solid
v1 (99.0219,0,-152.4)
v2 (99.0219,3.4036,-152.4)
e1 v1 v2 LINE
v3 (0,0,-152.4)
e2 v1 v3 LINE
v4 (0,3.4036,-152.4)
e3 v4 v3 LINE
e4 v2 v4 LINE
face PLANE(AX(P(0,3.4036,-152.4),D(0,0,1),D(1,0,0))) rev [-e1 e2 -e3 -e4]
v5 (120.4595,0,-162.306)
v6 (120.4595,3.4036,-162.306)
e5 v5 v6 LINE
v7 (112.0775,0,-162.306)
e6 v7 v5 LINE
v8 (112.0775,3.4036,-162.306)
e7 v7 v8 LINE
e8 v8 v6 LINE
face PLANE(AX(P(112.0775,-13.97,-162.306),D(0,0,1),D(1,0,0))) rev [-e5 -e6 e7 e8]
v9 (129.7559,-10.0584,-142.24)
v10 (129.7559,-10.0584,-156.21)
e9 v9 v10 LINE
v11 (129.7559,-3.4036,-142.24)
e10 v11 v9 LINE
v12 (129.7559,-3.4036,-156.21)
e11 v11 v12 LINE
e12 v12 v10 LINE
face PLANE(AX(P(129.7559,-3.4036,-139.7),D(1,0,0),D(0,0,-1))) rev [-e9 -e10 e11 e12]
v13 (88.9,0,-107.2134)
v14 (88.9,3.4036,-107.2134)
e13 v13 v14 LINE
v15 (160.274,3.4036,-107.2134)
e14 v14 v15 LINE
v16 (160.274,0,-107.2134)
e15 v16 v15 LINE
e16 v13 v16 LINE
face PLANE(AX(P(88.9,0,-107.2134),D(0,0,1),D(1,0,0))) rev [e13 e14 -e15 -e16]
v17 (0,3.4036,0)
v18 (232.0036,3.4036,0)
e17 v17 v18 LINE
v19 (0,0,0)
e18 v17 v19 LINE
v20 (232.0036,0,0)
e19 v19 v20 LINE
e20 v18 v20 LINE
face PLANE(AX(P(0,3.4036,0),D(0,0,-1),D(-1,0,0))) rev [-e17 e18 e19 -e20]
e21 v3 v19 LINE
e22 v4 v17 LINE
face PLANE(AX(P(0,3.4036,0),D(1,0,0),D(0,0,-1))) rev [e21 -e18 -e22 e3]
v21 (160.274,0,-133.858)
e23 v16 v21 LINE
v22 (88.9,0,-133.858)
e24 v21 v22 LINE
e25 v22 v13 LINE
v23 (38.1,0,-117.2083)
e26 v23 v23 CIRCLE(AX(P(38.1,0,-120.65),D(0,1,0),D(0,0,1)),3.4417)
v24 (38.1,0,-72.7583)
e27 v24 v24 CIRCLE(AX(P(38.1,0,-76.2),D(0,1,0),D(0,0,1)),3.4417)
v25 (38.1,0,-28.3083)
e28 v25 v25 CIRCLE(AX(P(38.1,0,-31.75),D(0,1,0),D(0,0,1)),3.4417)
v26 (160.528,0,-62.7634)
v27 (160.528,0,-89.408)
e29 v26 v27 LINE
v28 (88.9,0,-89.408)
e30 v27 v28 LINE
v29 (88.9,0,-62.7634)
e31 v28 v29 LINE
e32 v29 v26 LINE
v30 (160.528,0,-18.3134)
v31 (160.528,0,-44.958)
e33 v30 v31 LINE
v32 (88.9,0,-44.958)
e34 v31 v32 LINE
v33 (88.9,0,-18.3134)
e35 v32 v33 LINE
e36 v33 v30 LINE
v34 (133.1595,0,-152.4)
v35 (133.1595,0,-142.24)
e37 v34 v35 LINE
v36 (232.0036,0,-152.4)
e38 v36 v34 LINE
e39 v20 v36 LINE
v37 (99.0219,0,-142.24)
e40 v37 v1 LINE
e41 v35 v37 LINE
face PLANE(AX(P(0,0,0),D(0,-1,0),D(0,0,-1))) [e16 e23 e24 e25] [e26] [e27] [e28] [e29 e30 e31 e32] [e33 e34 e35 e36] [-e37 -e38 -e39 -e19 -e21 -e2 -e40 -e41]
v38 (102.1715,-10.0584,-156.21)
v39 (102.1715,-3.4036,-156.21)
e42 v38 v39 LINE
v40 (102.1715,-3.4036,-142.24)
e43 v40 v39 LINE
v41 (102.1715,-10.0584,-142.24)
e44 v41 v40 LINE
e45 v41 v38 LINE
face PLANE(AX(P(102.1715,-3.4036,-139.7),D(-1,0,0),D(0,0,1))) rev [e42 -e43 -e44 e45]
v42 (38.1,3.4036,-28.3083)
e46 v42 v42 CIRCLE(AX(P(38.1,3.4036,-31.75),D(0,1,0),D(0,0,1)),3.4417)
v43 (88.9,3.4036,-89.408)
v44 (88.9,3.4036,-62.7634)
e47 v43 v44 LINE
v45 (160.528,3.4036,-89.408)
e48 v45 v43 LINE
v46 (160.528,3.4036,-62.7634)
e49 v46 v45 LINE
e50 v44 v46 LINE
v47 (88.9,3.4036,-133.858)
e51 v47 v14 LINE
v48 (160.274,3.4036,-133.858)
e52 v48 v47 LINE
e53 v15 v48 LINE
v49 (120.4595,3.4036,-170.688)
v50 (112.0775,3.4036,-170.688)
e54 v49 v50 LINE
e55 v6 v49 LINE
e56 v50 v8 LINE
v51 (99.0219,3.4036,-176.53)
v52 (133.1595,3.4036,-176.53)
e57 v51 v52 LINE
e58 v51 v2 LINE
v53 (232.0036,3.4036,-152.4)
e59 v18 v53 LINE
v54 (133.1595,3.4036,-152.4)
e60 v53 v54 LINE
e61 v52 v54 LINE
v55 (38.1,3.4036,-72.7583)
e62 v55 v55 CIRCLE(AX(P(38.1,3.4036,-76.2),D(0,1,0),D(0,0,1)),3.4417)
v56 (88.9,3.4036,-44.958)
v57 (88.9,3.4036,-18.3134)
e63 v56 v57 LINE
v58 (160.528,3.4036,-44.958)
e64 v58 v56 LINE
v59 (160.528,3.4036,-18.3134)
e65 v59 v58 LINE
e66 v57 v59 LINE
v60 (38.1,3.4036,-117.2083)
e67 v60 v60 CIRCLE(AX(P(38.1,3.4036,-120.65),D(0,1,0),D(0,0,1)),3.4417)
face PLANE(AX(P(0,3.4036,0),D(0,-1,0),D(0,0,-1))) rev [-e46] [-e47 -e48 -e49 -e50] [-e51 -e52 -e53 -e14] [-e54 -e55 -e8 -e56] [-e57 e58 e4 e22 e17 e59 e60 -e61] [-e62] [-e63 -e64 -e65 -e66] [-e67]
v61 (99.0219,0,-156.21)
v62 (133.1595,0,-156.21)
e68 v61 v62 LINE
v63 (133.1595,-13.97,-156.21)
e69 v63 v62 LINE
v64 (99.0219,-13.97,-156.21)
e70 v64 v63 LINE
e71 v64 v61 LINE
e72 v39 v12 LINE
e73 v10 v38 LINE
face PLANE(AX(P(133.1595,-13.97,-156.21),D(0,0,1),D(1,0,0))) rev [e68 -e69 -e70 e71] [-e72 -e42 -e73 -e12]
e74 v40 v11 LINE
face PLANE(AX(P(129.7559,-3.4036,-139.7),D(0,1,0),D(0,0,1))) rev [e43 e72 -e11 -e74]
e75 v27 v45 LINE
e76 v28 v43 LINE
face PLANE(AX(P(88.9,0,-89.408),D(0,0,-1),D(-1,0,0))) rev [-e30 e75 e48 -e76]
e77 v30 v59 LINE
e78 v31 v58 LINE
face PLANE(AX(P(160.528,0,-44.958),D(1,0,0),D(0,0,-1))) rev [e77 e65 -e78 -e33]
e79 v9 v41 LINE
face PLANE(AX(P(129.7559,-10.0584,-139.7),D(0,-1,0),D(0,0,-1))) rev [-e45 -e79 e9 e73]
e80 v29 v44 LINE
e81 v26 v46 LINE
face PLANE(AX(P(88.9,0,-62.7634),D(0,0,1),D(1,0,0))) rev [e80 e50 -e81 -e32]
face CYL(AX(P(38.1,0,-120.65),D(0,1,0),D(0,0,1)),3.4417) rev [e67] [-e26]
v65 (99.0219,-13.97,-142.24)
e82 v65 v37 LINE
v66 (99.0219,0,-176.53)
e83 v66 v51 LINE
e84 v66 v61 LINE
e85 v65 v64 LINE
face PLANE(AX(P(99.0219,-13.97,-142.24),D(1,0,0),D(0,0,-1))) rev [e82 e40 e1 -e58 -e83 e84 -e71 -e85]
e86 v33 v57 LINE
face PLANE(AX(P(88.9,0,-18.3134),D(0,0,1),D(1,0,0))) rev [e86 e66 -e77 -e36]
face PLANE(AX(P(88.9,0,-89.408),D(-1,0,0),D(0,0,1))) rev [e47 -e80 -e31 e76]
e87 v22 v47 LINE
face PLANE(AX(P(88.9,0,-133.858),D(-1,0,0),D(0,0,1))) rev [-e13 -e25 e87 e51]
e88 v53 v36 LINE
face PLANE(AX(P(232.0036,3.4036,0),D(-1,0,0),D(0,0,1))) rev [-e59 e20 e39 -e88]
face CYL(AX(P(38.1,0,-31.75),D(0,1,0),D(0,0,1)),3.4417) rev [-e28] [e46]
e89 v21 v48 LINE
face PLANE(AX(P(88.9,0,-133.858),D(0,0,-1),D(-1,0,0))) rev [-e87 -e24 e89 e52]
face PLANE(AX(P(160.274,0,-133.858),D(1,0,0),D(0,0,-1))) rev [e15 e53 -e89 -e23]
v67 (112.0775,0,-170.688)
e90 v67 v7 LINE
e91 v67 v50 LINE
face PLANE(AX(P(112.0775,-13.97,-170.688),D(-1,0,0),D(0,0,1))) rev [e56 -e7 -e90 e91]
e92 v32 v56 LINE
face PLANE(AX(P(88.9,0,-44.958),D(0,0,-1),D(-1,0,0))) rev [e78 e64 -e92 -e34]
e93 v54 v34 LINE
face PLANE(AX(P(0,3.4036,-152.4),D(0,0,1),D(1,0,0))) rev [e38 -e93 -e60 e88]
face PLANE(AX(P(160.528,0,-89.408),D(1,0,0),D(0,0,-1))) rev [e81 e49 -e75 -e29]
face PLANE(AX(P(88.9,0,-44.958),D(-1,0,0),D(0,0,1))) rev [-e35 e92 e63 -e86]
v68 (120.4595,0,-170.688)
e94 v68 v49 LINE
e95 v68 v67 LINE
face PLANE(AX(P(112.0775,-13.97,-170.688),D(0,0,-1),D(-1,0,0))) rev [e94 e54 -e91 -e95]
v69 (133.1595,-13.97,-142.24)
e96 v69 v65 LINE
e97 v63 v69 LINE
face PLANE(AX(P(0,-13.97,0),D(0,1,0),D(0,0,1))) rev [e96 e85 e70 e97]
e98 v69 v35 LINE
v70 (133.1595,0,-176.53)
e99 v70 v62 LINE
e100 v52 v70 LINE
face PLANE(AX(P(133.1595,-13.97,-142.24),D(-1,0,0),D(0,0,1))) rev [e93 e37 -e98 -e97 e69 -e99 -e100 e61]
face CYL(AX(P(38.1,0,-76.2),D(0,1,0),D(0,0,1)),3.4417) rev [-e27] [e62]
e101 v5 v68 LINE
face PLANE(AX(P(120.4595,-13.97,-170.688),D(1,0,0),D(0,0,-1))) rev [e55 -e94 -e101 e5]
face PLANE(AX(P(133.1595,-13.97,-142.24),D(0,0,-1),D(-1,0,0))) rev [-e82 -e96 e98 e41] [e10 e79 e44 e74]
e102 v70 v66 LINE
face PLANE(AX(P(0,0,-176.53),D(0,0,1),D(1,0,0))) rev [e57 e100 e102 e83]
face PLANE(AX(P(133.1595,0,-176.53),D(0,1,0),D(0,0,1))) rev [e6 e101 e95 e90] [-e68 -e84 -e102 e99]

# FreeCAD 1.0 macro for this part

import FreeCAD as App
import Part
import Sketcher
from FreeCAD import Vector
Q = App.Units.Quantity


def add_polygon(sketch, points):
    """Adds a closed chain of lines whose ends are joined by coincident constraints."""
    first, n = sketch.GeometryCount, len(points)
    for a, b in zip(points, points[1:] + points[:1]):
        sketch.addGeometry(Part.LineSegment(App.Vector(*a, 0), App.Vector(*b, 0)), False)
    for i in range(n):
        sketch.addConstraint(Sketcher.Constraint("Coincident", first + i, 2, first + (i + 1) % n, 1))

doc = App.newDocument("Part")
params = doc.addObject("Spreadsheet::Sheet", "Params")
for row, (alias, value) in enumerate([
    ("sketch1_height", "6 in"),
    ("sketch1_width", "9.134 in"),
    ("pad1_length", "0.134 in"),
    ("sketch2_diameter", "0.271 in"),
    ("sketch2_width", "2.81 in"),
    ("sketch2_width2", "2.82 in"),
    ("sketch2_height", "1.049 in"),
    ("sketch3_height", "0.55 in"),
    ("sketch3_width", "1.344 in"),
    ("pad2_length", "0.55 in"),
    ("sketch4_width", "1.086 in"),
    ("sketch4_height", "0.262 in"),
    ("pocket2_length", "0.65 in"),
    ("sketch5_width", "1.344 in"),
    ("sketch5_height", "0.134 in"),
    ("pad3_length", "0.95 in"),
    ("sketch6_width", "0.33 in"),
], start=1):
    params.set(f"A{row}", alias)
    params.set(f"B{row}", "=" + value)
    params.setAlias(f"B{row}", alias)

body = doc.addObject("PartDesign::Body", "Body")

# Sketch on XZ plane
sketch1 = body.newObject("Sketcher::SketchObject", "Sketch")
sketch1.AttachmentSupport = (doc.getObject("XZ_Plane"), [""])
sketch1.MapMode = "FlatFace"
add_polygon(sketch1, [(0, -152), (0, 0), (232, 0), (232, -152)])  # lines 0-3
sketch1.addConstraint(Sketcher.Constraint("Vertical", 0))
sketch1.addConstraint(Sketcher.Constraint("Horizontal", 1))
sketch1.addConstraint(Sketcher.Constraint("Vertical", 2))
sketch1.addConstraint(Sketcher.Constraint("Horizontal", 3))
sketch1.addConstraint(Sketcher.Constraint("Coincident", 0, 2, -1, 1))
sketch1.addConstraint(Sketcher.Constraint("DistanceY", 0, 1, 0, 2, Q("6 in")))
sketch1.addConstraint(Sketcher.Constraint("DistanceX", 1, 1, 1, 2, Q("9.134 in")))
sketch1.setExpression("Constraints[9]", "Params.sketch1_height")
sketch1.setExpression("Constraints[10]", "Params.sketch1_width")
pad1 = body.newObject("PartDesign::Pad", "Pad")
pad1.Profile = sketch1
pad1.setExpression("Length", "Params.pad1_length")
pad1.Reversed = True

# Sketch on XZ plane
sketch2 = body.newObject("Sketcher::SketchObject", "Sketch001")
sketch2.AttachmentSupport = (doc.getObject("XZ_Plane"), [""])
sketch2.MapMode = "FlatFace"
sketch2.AttachmentOffset = App.Placement(Vector(0, 0, -0.134 * 25.4), App.Rotation())
sketch2.addGeometry(Part.Circle(Vector(38.1, -120.7, 0), Vector(0, 0, 1), 3.4), False)  # 0
sketch2.addGeometry(Part.Circle(Vector(38.1, -76.2, 0), Vector(0, 0, 1), 3.4), False)  # 1
sketch2.addGeometry(Part.Circle(Vector(38.1, -31.8, 0), Vector(0, 0, 1), 3.4), False)  # 2
add_polygon(sketch2, [(88.9, -133.9), (88.9, -107.2), (160.3, -107.2), (160.3, -133.9)])  # lines 3-6
add_polygon(sketch2, [(88.9, -89.4), (88.9, -62.8), (160.5, -62.8), (160.5, -89.4)])  # lines 7-10
add_polygon(sketch2, [(88.9, -45), (88.9, -18.3), (160.5, -18.3), (160.5, -45)])  # lines 11-14
sketch2.addConstraint(Sketcher.Constraint("Vertical", 3))
sketch2.addConstraint(Sketcher.Constraint("Horizontal", 4))
sketch2.addConstraint(Sketcher.Constraint("Vertical", 5))
sketch2.addConstraint(Sketcher.Constraint("Horizontal", 6))
sketch2.addConstraint(Sketcher.Constraint("Vertical", 7))
sketch2.addConstraint(Sketcher.Constraint("Horizontal", 8))
sketch2.addConstraint(Sketcher.Constraint("Vertical", 9))
sketch2.addConstraint(Sketcher.Constraint("Horizontal", 10))
sketch2.addConstraint(Sketcher.Constraint("Vertical", 11))
sketch2.addConstraint(Sketcher.Constraint("Horizontal", 12))
sketch2.addConstraint(Sketcher.Constraint("Vertical", 13))
sketch2.addConstraint(Sketcher.Constraint("Horizontal", 14))
sketch2.addConstraint(Sketcher.Constraint("Equal", 0, 1))
sketch2.addConstraint(Sketcher.Constraint("Equal", 1, 2))
sketch2.addConstraint(Sketcher.Constraint("Vertical", 0, 3, 1, 3))
sketch2.addConstraint(Sketcher.Constraint("Vertical", 1, 3, 2, 3))
sketch2.addConstraint(Sketcher.Constraint("Vertical", 6, 2, 7, 2))
sketch2.addConstraint(Sketcher.Constraint("Vertical", 10, 2, 11, 2))
sketch2.addConstraint(Sketcher.Constraint("Vertical", 9, 2, 12, 2))
sketch2.addConstraint(Sketcher.Constraint("Equal", 5, 7))
sketch2.addConstraint(Sketcher.Constraint("Equal", 9, 11))
sketch2.addConstraint(Sketcher.Constraint("Diameter", 0, Q("0.271 in")))
sketch2.addConstraint(Sketcher.Constraint("DistanceY", 1, 3, -1, 1, Q("3 in")))
sketch2.addConstraint(Sketcher.Constraint("DistanceX", 0, 3, 3, 2, Q("2 in")))
sketch2.addConstraint(Sketcher.Constraint("DistanceX", 4, 1, 4, 2, Q("2.81 in")))
sketch2.addConstraint(Sketcher.Constraint("DistanceX", 8, 1, 8, 2, Q("2.82 in")))
sketch2.addConstraint(Sketcher.Constraint("DistanceX", -1, 1, 0, 3, Q("1.5 in")))
sketch2.addConstraint(Sketcher.Constraint("DistanceY", 0, 3, 2, 3, Q("3.5 in")))
sketch2.addConstraint(Sketcher.Constraint("DistanceY", 4, 2, 12, 2, Q("3.5 in")))
sketch2.addConstraint(Sketcher.Constraint("DistanceY", 3, 1, 3, 2, Q("1.049 in")))
sketch2.addConstraint(Sketcher.Constraint("DistanceY", 0, 3, -1, 1, Q("4.75 in")))
sketch2.addConstraint(Sketcher.Constraint("DistanceY", 5, 2, -1, 1, Q("5.27 in")))
sketch2.addConstraint(Sketcher.Constraint("DistanceY", 9, 2, -1, 1, Q("3.52 in")))
sketch2.setExpression("Constraints[33]", "Params.sketch2_diameter")
sketch2.setExpression("Constraints[36]", "Params.sketch2_width")
sketch2.setExpression("Constraints[37]", "Params.sketch2_width2")
sketch2.setExpression("Constraints[41]", "Params.sketch2_height")
pocket1 = body.newObject("PartDesign::Pocket", "Pocket")
pocket1.Profile = sketch2
pocket1.Type = "ThroughAll"
pocket1.Reversed = True

# Sketch on XZ plane
sketch3 = body.newObject("Sketcher::SketchObject", "Sketch002")
sketch3.AttachmentSupport = (doc.getObject("XZ_Plane"), [""])
sketch3.MapMode = "FlatFace"
add_polygon(sketch3, [(99, -142), (99, -156), (133, -156), (133, -142)])  # lines 0-3
sketch3.addConstraint(Sketcher.Constraint("Vertical", 0))
sketch3.addConstraint(Sketcher.Constraint("Horizontal", 1))
sketch3.addConstraint(Sketcher.Constraint("Vertical", 2))
sketch3.addConstraint(Sketcher.Constraint("Horizontal", 3))
sketch3.addConstraint(Sketcher.Constraint("DistanceY", 0, 2, 0, 1, Q("0.55 in")))
sketch3.addConstraint(Sketcher.Constraint("DistanceY", 2, 2, -1, 1, Q("5.6 in")))
sketch3.addConstraint(Sketcher.Constraint("DistanceX", 1, 1, 1, 2, Q("1.344 in")))
sketch3.addConstraint(Sketcher.Constraint("DistanceX", -1, 1, 0, 2, Q("3.8985 in")))
sketch3.setExpression("Constraints[8]", "Params.sketch3_height")
sketch3.setExpression("Constraints[10]", "Params.sketch3_width")
pad2 = body.newObject("PartDesign::Pad", "Pad001")
pad2.Profile = sketch3
pad2.setExpression("Length", "Params.pad2_length")

# Sketch on XY plane
sketch4 = body.newObject("Sketcher::SketchObject", "Sketch003")
sketch4.AttachmentSupport = (doc.getObject("XY_Plane"), [""])
sketch4.MapMode = "FlatFace"
sketch4.AttachmentOffset = App.Placement(Vector(0, 0, -6.15 * 25.4), App.Rotation())
add_polygon(sketch4, [(130, -3), (130, -10), (102, -10), (102, -3)])  # lines 0-3
sketch4.addConstraint(Sketcher.Constraint("Vertical", 0))
sketch4.addConstraint(Sketcher.Constraint("Horizontal", 1))
sketch4.addConstraint(Sketcher.Constraint("Vertical", 2))
sketch4.addConstraint(Sketcher.Constraint("Horizontal", 3))
sketch4.addConstraint(Sketcher.Constraint("DistanceX", 1, 2, 1, 1, Q("1.086 in")))
sketch4.addConstraint(Sketcher.Constraint("DistanceY", 0, 2, 0, 1, Q("0.262 in")))
sketch4.addConstraint(Sketcher.Constraint("DistanceY", 0, 2, -1, 1, Q("0.396 in")))
sketch4.addConstraint(Sketcher.Constraint("DistanceX", -1, 1, 0, 2, Q("5.1085 in")))
sketch4.setExpression("Constraints[8]", "Params.sketch4_width")
sketch4.setExpression("Constraints[9]", "Params.sketch4_height")
pocket2 = body.newObject("PartDesign::Pocket", "Pocket001")
pocket2.Profile = sketch4
pocket2.setExpression("Length", "Params.pocket2_length")
pocket2.Reversed = True

# Sketch on XY plane
sketch5 = body.newObject("Sketcher::SketchObject", "Sketch004")
sketch5.AttachmentSupport = (doc.getObject("XY_Plane"), [""])
sketch5.MapMode = "FlatFace"
sketch5.AttachmentOffset = App.Placement(Vector(0, 0, -6 * 25.4), App.Rotation())
add_polygon(sketch5, [(133.2, 3.4), (133.2, 0), (99, 0), (99, 3.4)])  # lines 0-3
sketch5.addConstraint(Sketcher.Constraint("Vertical", 0))
sketch5.addConstraint(Sketcher.Constraint("Horizontal", 1))
sketch5.addConstraint(Sketcher.Constraint("Vertical", 2))
sketch5.addConstraint(Sketcher.Constraint("Horizontal", 3))
sketch5.addConstraint(Sketcher.Constraint("PointOnObject", 0, 2, -1))
sketch5.addConstraint(Sketcher.Constraint("DistanceX", 1, 2, 1, 1, Q("1.344 in")))
sketch5.addConstraint(Sketcher.Constraint("DistanceY", 0, 2, 0, 1, Q("0.134 in")))
sketch5.addConstraint(Sketcher.Constraint("DistanceX", -1, 1, 0, 2, Q("5.2425 in")))
sketch5.setExpression("Constraints[9]", "Params.sketch5_width")
sketch5.setExpression("Constraints[10]", "Params.sketch5_height")
pad3 = body.newObject("PartDesign::Pad", "Pad002")
pad3.Profile = sketch5
pad3.setExpression("Length", "Params.pad3_length")
pad3.Reversed = True

# Sketch on XZ plane
sketch6 = body.newObject("Sketcher::SketchObject", "Sketch005")
sketch6.AttachmentSupport = (doc.getObject("XZ_Plane"), [""])
sketch6.MapMode = "FlatFace"
sketch6.AttachmentOffset = App.Placement(Vector(0, 0, -0.134 * 25.4), App.Rotation())
add_polygon(sketch6, [(112, -171), (112, -162), (120, -162), (120, -171)])  # lines 0-3
sketch6.addConstraint(Sketcher.Constraint("Vertical", 0))
sketch6.addConstraint(Sketcher.Constraint("Horizontal", 1))
sketch6.addConstraint(Sketcher.Constraint("Vertical", 2))
sketch6.addConstraint(Sketcher.Constraint("Horizontal", 3))
sketch6.addConstraint(Sketcher.Constraint("Equal", 3, 0))
sketch6.addConstraint(Sketcher.Constraint("DistanceX", 1, 1, 1, 2, Q("0.33 in")))
sketch6.addConstraint(Sketcher.Constraint("DistanceY", 0, 2, -1, 1, Q("6.39 in")))
sketch6.addConstraint(Sketcher.Constraint("DistanceX", -1, 1, 0, 2, Q("4.4125 in")))
sketch6.setExpression("Constraints[9]", "Params.sketch6_width")
pocket3 = body.newObject("PartDesign::Pocket", "Pocket002")
pocket3.Profile = sketch6
pocket3.Type = "ThroughAll"
pocket3.Reversed = True

doc.recompute()
